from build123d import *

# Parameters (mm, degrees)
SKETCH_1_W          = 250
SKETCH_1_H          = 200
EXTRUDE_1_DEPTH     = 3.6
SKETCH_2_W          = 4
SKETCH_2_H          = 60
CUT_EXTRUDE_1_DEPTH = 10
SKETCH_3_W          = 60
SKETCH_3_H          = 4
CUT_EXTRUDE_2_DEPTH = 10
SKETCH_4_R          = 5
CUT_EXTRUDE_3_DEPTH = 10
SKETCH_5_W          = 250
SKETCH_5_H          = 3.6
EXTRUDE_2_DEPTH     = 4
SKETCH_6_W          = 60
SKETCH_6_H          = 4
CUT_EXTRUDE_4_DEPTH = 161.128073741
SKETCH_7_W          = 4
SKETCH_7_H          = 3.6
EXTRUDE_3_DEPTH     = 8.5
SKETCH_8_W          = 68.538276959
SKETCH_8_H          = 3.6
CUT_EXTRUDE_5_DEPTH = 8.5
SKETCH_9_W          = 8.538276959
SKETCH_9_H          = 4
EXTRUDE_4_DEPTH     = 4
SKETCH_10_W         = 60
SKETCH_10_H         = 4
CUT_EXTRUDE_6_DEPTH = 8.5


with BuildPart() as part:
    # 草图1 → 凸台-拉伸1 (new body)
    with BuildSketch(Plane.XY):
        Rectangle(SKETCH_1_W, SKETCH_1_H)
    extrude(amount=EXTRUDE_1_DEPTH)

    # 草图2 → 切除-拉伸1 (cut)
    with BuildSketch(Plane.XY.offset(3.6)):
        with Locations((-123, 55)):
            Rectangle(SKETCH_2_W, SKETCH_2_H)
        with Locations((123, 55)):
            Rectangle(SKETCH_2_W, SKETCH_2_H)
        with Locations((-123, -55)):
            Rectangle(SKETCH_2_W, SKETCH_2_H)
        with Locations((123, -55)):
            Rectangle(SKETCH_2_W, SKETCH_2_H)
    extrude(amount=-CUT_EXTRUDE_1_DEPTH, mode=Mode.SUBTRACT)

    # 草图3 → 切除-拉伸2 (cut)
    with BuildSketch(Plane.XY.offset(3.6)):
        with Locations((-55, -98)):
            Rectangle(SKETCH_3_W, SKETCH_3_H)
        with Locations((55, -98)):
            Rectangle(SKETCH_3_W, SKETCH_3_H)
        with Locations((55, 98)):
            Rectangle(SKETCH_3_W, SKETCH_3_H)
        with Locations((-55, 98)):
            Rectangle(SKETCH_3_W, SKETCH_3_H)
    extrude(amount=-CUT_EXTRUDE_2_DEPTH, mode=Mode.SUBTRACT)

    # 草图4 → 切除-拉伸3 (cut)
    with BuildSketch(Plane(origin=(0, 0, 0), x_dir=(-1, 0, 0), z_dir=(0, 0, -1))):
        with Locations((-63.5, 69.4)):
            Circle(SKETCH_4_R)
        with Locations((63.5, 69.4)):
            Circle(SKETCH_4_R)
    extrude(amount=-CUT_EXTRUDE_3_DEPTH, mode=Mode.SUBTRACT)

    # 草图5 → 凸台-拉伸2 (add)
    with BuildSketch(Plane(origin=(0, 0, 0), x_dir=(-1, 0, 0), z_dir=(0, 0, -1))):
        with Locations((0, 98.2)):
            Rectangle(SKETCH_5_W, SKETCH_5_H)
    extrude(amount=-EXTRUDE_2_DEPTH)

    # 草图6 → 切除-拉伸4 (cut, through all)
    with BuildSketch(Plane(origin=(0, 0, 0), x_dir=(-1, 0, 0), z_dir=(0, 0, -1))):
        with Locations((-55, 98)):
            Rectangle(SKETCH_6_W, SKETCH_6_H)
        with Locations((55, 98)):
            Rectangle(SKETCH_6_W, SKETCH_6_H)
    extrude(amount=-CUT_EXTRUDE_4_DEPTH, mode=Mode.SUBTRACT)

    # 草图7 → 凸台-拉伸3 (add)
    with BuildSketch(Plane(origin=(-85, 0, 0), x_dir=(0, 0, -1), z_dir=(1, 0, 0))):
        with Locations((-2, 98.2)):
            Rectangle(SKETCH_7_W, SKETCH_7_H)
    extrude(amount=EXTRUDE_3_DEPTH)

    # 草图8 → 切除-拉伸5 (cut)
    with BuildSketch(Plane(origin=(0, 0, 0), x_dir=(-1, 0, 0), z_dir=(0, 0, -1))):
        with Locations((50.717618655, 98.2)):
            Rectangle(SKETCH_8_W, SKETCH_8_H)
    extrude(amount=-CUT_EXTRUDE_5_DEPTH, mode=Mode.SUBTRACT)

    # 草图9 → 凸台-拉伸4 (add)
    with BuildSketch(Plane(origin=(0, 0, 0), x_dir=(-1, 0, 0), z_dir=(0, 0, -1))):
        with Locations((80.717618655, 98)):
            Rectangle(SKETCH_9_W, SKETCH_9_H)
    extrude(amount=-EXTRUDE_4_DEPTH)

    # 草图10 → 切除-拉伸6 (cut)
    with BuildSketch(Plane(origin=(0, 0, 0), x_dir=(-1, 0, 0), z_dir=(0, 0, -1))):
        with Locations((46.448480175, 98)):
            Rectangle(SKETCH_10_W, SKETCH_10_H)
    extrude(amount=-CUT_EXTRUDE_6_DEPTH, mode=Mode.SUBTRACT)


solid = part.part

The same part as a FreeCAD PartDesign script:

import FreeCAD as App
import Part
import Sketcher

doc = App.newDocument("Part")
params = doc.addObject("Spreadsheet::Sheet", "Params")
for row, (alias, value) in enumerate([
    ("sketch1_width", "250 mm"),
    ("sketch1_height", "200 mm"),
    ("pad1_length", "3.6 mm"),
    ("sketch2_width", "4 mm"),
    ("sketch2_height", "60 mm"),
    ("pocket1_length", "10 mm"),
    ("sketch3_width", "60 mm"),
    ("sketch3_height", "4 mm"),
    ("pocket2_length", "10 mm"),
    ("sketch4_diameter", "10 mm"),
    ("pocket3_length", "10 mm"),
    ("sketch5_width", "250 mm"),
    ("sketch5_height", "3.6 mm"),
    ("pad2_length", "4 mm"),
    ("sketch6_width", "60 mm"),
    ("sketch6_height", "4 mm"),
    ("sketch7_height", "4 mm"),
    ("sketch7_width", "3.6 mm"),
    ("pad3_length", "8.5 mm"),
    ("sketch8_height", "3.6 mm"),
    ("pocket5_length", "8.5 mm"),
    ("sketch9_height", "4 mm"),
    ("pad4_length", "4 mm"),
    ("sketch10_width", "60 mm"),
    ("sketch10_height", "4 mm"),
    ("pocket6_length", "8.5 mm"),
], start=1):
    params.set(f"A{row}", alias)
    params.set(f"B{row}", "=" + value)
    params.setAlias(f"B{row}", alias)

body = doc.addObject("PartDesign::Body", "Body")

sketch1 = body.newObject("Sketcher::SketchObject", "Sketch")
sketch1.AttachmentSupport = (doc.getObject("XY_Plane"), [""])
sketch1.MapMode = "FlatFace"
sketch1.addGeometry([
    Part.LineSegment(App.Vector(-125, 100, 0), App.Vector(-125, -100, 0)),
    Part.LineSegment(App.Vector(-125, -100, 0), App.Vector(125, -100, 0)),
    Part.LineSegment(App.Vector(125, -100, 0), App.Vector(125, 100, 0)),
    Part.LineSegment(App.Vector(125, 100, 0), App.Vector(-125, 100, 0)),
], False)
sketch1.addConstraint([
    Sketcher.Constraint("Coincident", 0, 2, 1, 1),
    Sketcher.Constraint("Coincident", 1, 2, 2, 1),
    Sketcher.Constraint("Coincident", 2, 2, 3, 1),
    Sketcher.Constraint("Coincident", 3, 2, 0, 1),
    Sketcher.Constraint("Vertical", 0),
    Sketcher.Constraint("Horizontal", 1),
    Sketcher.Constraint("Vertical", 2),
    Sketcher.Constraint("Horizontal", 3),
    Sketcher.Constraint("Symmetric", 0, 2, 2, 2, -1, 1),
    Sketcher.Constraint("DistanceX", 1, 1, 1, 2, 250.0),
    Sketcher.Constraint("DistanceY", 0, 2, 0, 1, 200.0),
])
sketch1.setExpression("Constraints[9]", "Params.sketch1_width")
sketch1.setExpression("Constraints[10]", "Params.sketch1_height")
pad1 = body.newObject("PartDesign::Pad", "Pad")
pad1.Profile = sketch1
pad1.setExpression("Length", "Params.pad1_length")

sketch2 = body.newObject("Sketcher::SketchObject", "Sketch001")
sketch2.AttachmentSupport = (doc.getObject("XY_Plane"), [""])
sketch2.MapMode = "FlatFace"
sketch2.AttachmentOffset = App.Placement(App.Vector(0, 0, 3.6), App.Rotation())
sketch2.addGeometry([
    Part.LineSegment(App.Vector(-125, 85, 0), App.Vector(-125, 25, 0)),
    Part.LineSegment(App.Vector(-125, 25, 0), App.Vector(-121, 25, 0)),
    Part.LineSegment(App.Vector(-121, 25, 0), App.Vector(-121, 85, 0)),
    Part.LineSegment(App.Vector(-121, 85, 0), App.Vector(-125, 85, 0)),
    Part.LineSegment(App.Vector(121, 85, 0), App.Vector(121, 25, 0)),
    Part.LineSegment(App.Vector(121, 25, 0), App.Vector(125, 25, 0)),
    Part.LineSegment(App.Vector(125, 25, 0), App.Vector(125, 85, 0)),
    Part.LineSegment(App.Vector(125, 85, 0), App.Vector(121, 85, 0)),
    Part.LineSegment(App.Vector(-125, -25, 0), App.Vector(-125, -85, 0)),
    Part.LineSegment(App.Vector(-125, -85, 0), App.Vector(-121, -85, 0)),
    Part.LineSegment(App.Vector(-121, -85, 0), App.Vector(-121, -25, 0)),
    Part.LineSegment(App.Vector(-121, -25, 0), App.Vector(-125, -25, 0)),
    Part.LineSegment(App.Vector(121, -25, 0), App.Vector(121, -85, 0)),
    Part.LineSegment(App.Vector(121, -85, 0), App.Vector(125, -85, 0)),
    Part.LineSegment(App.Vector(125, -85, 0), App.Vector(125, -25, 0)),
    Part.LineSegment(App.Vector(125, -25, 0), App.Vector(121, -25, 0)),
], False)
sketch2.addConstraint([
    Sketcher.Constraint("Coincident", 0, 2, 1, 1),
    Sketcher.Constraint("Coincident", 1, 2, 2, 1),
    Sketcher.Constraint("Coincident", 2, 2, 3, 1),
    Sketcher.Constraint("Coincident", 3, 2, 0, 1),
    Sketcher.Constraint("Coincident", 4, 2, 5, 1),
    Sketcher.Constraint("Coincident", 5, 2, 6, 1),
    Sketcher.Constraint("Coincident", 6, 2, 7, 1),
    Sketcher.Constraint("Coincident", 7, 2, 4, 1),
    Sketcher.Constraint("Coincident", 8, 2, 9, 1),
    Sketcher.Constraint("Coincident", 9, 2, 10, 1),
    Sketcher.Constraint("Coincident", 10, 2, 11, 1),
    Sketcher.Constraint("Coincident", 11, 2, 8, 1),
    Sketcher.Constraint("Coincident", 12, 2, 13, 1),
    Sketcher.Constraint("Coincident", 13, 2, 14, 1),
    Sketcher.Constraint("Coincident", 14, 2, 15, 1),
    Sketcher.Constraint("Coincident", 15, 2, 12, 1),
    Sketcher.Constraint("Vertical", 0),
    Sketcher.Constraint("Horizontal", 1),
    Sketcher.Constraint("Vertical", 2),
    Sketcher.Constraint("Horizontal", 3),
    Sketcher.Constraint("Vertical", 4),
    Sketcher.Constraint("Horizontal", 5),
    Sketcher.Constraint("Vertical", 6),
    Sketcher.Constraint("Horizontal", 7),
    Sketcher.Constraint("Vertical", 8),
    Sketcher.Constraint("Horizontal", 9),
    Sketcher.Constraint("Vertical", 10),
    Sketcher.Constraint("Horizontal", 11),
    Sketcher.Constraint("Vertical", 12),
    Sketcher.Constraint("Horizontal", 13),
    Sketcher.Constraint("Vertical", 14),
    Sketcher.Constraint("Horizontal", 15),
    Sketcher.Constraint("Symmetric", 6, 2, 8, 2, -1, 1),
    Sketcher.Constraint("Symmetric", 4, 2, 10, 2, -1, 1),
    Sketcher.Constraint("Symmetric", 2, 2, 12, 2, -1, 1),
    Sketcher.Constraint("Symmetric", 0, 2, 14, 2, -1, 1),
    Sketcher.Constraint("Symmetric", 1, 2, 4, 2, -2),
    Sketcher.Constraint("Symmetric", 3, 2, 6, 2, -2),
    Sketcher.Constraint("DistanceX", 1, 1, 1, 2, 4.0),
    Sketcher.Constraint("DistanceY", 0, 2, 0, 1, 60.0),
    Sketcher.Constraint("DistanceX", 0, 2, -1, 1, 125.0),
    Sketcher.Constraint("DistanceY", -1, 1, 0, 2, 25.0),
])
sketch2.setExpression("Constraints[38]", "Params.sketch2_width")
sketch2.setExpression("Constraints[39]", "Params.sketch2_height")
pocket1 = body.newObject("PartDesign::Pocket", "Pocket")
pocket1.Profile = sketch2
pocket1.setExpression("Length", "Params.pocket1_length")

sketch3 = body.newObject("Sketcher::SketchObject", "Sketch002")
sketch3.AttachmentSupport = (doc.getObject("XY_Plane"), [""])
sketch3.MapMode = "FlatFace"
sketch3.AttachmentOffset = App.Placement(App.Vector(0, 0, 3.6), App.Rotation())
sketch3.addGeometry([
    Part.LineSegment(App.Vector(-85, -96, 0), App.Vector(-85, -100, 0)),
    Part.LineSegment(App.Vector(-85, -100, 0), App.Vector(-25, -100, 0)),
    Part.LineSegment(App.Vector(-25, -100, 0), App.Vector(-25, -96, 0)),
    Part.LineSegment(App.Vector(-25, -96, 0), App.Vector(-85, -96, 0)),
    Part.LineSegment(App.Vector(25, -96, 0), App.Vector(25, -100, 0)),
    Part.LineSegment(App.Vector(25, -100, 0), App.Vector(85, -100, 0)),
    Part.LineSegment(App.Vector(85, -100, 0), App.Vector(85, -96, 0)),
    Part.LineSegment(App.Vector(85, -96, 0), App.Vector(25, -96, 0)),
    Part.LineSegment(App.Vector(25, 100, 0), App.Vector(25, 96, 0)),
    Part.LineSegment(App.Vector(25, 96, 0), App.Vector(85, 96, 0)),
    Part.LineSegment(App.Vector(85, 96, 0), App.Vector(85, 100, 0)),
    Part.LineSegment(App.Vector(85, 100, 0), App.Vector(25, 100, 0)),
    Part.LineSegment(App.Vector(-85, 100, 0), App.Vector(-85, 96, 0)),
    Part.LineSegment(App.Vector(-85, 96, 0), App.Vector(-25, 96, 0)),
    Part.LineSegment(App.Vector(-25, 96, 0), App.Vector(-25, 100, 0)),
    Part.LineSegment(App.Vector(-25, 100, 0), App.Vector(-85, 100, 0)),
], False)
sketch3.addConstraint([
    Sketcher.Constraint("Coincident", 0, 2, 1, 1),
    Sketcher.Constraint("Coincident", 1, 2, 2, 1),
    Sketcher.Constraint("Coincident", 2, 2, 3, 1),
    Sketcher.Constraint("Coincident", 3, 2, 0, 1),
    Sketcher.Constraint("Coincident", 4, 2, 5, 1),
    Sketcher.Constraint("Coincident", 5, 2, 6, 1),
    Sketcher.Constraint("Coincident", 6, 2, 7, 1),
    Sketcher.Constraint("Coincident", 7, 2, 4, 1),
    Sketcher.Constraint("Coincident", 8, 2, 9, 1),
    Sketcher.Constraint("Coincident", 9, 2, 10, 1),
    Sketcher.Constraint("Coincident", 10, 2, 11, 1),
    Sketcher.Constraint("Coincident", 11, 2, 8, 1),
    Sketcher.Constraint("Coincident", 12, 2, 13, 1),
    Sketcher.Constraint("Coincident", 13, 2, 14, 1),
    Sketcher.Constraint("Coincident", 14, 2, 15, 1),
    Sketcher.Constraint("Coincident", 15, 2, 12, 1),
    Sketcher.Constraint("Vertical", 0),
    Sketcher.Constraint("Horizontal", 1),
    Sketcher.Constraint("Vertical", 2),
    Sketcher.Constraint("Horizontal", 3),
    Sketcher.Constraint("Vertical", 4),
    Sketcher.Constraint("Horizontal", 5),
    Sketcher.Constraint("Vertical", 6),
    Sketcher.Constraint("Horizontal", 7),
    Sketcher.Constraint("Vertical", 8),
    Sketcher.Constraint("Horizontal", 9),
    Sketcher.Constraint("Vertical", 10),
    Sketcher.Constraint("Horizontal", 11),
    Sketcher.Constraint("Vertical", 12),
    Sketcher.Constraint("Horizontal", 13),
    Sketcher.Constraint("Vertical", 14),
    Sketcher.Constraint("Horizontal", 15),
    Sketcher.Constraint("Symmetric", 2, 2, 8, 2, -1, 1),
    Sketcher.Constraint("Symmetric", 0, 2, 10, 2, -1, 1),
    Sketcher.Constraint("Symmetric", 6, 2, 12, 2, -1, 1),
    Sketcher.Constraint("Symmetric", 4, 2, 14, 2, -1, 1),
    Sketcher.Constraint("Symmetric", 1, 2, 4, 2, -2),
    Sketcher.Constraint("Symmetric", 3, 2, 6, 2, -2),
    Sketcher.Constraint("DistanceX", 1, 1, 1, 2, 60.0),
    Sketcher.Constraint("DistanceY", 0, 2, 0, 1, 4.0),
    Sketcher.Constraint("DistanceX", 0, 2, -1, 1, 85.0),
    Sketcher.Constraint("DistanceY", 0, 2, -1, 1, 100.0),
])
sketch3.setExpression("Constraints[38]", "Params.sketch3_width")
sketch3.setExpression("Constraints[39]", "Params.sketch3_height")
pocket2 = body.newObject("PartDesign::Pocket", "Pocket001")
pocket2.Profile = sketch3
pocket2.setExpression("Length", "Params.pocket2_length")

sketch4 = body.newObject("Sketcher::SketchObject", "Sketch003")
sketch4.AttachmentSupport = (doc.getObject("XY_Plane"), [""])
sketch4.MapMode = "FlatFace"
sketch4.addGeometry([
    Part.Circle(App.Vector(64, 69, 0), App.Vector(0, 0, 1), 5),
    Part.Circle(App.Vector(-64, 69, 0), App.Vector(0, 0, 1), 5),
], False)
sketch4.addConstraint([
    Sketcher.Constraint("Equal", 0, 1),
    Sketcher.Constraint("Symmetric", 0, 3, 1, 3, -2),
    Sketcher.Constraint("Diameter", 0, 10.0),
    Sketcher.Constraint("DistanceX", 1, 3, 0, 3, 127.0),
    Sketcher.Constraint("DistanceY", -1, 1, 0, 3, 69.4),
])
sketch4.setExpression("Constraints[2]", "Params.sketch4_diameter")
pocket3 = body.newObject("PartDesign::Pocket", "Pocket002")
pocket3.Profile = sketch4
pocket3.setExpression("Length", "Params.pocket3_length")
pocket3.Reversed = True

sketch5 = body.newObject("Sketcher::SketchObject", "Sketch004")
sketch5.AttachmentSupport = (doc.getObject("XY_Plane"), [""])
sketch5.MapMode = "FlatFace"
sketch5.addGeometry([
    Part.LineSegment(App.Vector(125, 100, 0), App.Vector(125, 96.4, 0)),
    Part.LineSegment(App.Vector(125, 96.4, 0), App.Vector(-125, 96.4, 0)),
    Part.LineSegment(App.Vector(-125, 96.4, 0), App.Vector(-125, 100, 0)),
    Part.LineSegment(App.Vector(-125, 100, 0), App.Vector(125, 100, 0)),
], False)
sketch5.addConstraint([
    Sketcher.Constraint("Coincident", 0, 2, 1, 1),
    Sketcher.Constraint("Coincident", 1, 2, 2, 1),
    Sketcher.Constraint("Coincident", 2, 2, 3, 1),
    Sketcher.Constraint("Coincident", 3, 2, 0, 1),
    Sketcher.Constraint("Vertical", 0),
    Sketcher.Constraint("Horizontal", 1),
    Sketcher.Constraint("Vertical", 2),
    Sketcher.Constraint("Horizontal", 3),
    Sketcher.Constraint("DistanceX", 1, 2, 1, 1, 250.0),
    Sketcher.Constraint("DistanceY", 0, 2, 0, 1, 3.6),
    Sketcher.Constraint("DistanceX", -1, 1, 0, 2, 125.0),
    Sketcher.Constraint("DistanceY", -1, 1, 2, 2, 100.0),
])
sketch5.setExpression("Constraints[8]", "Params.sketch5_width")
sketch5.setExpression("Constraints[9]", "Params.sketch5_height")
pad2 = body.newObject("PartDesign::Pad", "Pad001")
pad2.Profile = sketch5
pad2.setExpression("Length", "Params.pad2_length")

sketch6 = body.newObject("Sketcher::SketchObject", "Sketch005")
sketch6.AttachmentSupport = (doc.getObject("XY_Plane"), [""])
sketch6.MapMode = "FlatFace"
sketch6.addGeometry([
    Part.LineSegment(App.Vector(85, 100, 0), App.Vector(85, 96, 0)),
    Part.LineSegment(App.Vector(85, 96, 0), App.Vector(25, 96, 0)),
    Part.LineSegment(App.Vector(25, 96, 0), App.Vector(25, 100, 0)),
    Part.LineSegment(App.Vector(25, 100, 0), App.Vector(85, 100, 0)),
    Part.LineSegment(App.Vector(-25, 100, 0), App.Vector(-25, 96, 0)),
    Part.LineSegment(App.Vector(-25, 96, 0), App.Vector(-85, 96, 0)),
    Part.LineSegment(App.Vector(-85, 96, 0), App.Vector(-85, 100, 0)),
    Part.LineSegment(App.Vector(-85, 100, 0), App.Vector(-25, 100, 0)),
], False)
sketch6.addConstraint([
    Sketcher.Constraint("Coincident", 0, 2, 1, 1),
    Sketcher.Constraint("Coincident", 1, 2, 2, 1),
    Sketcher.Constraint("Coincident", 2, 2, 3, 1),
    Sketcher.Constraint("Coincident", 3, 2, 0, 1),
    Sketcher.Constraint("Coincident", 4, 2, 5, 1),
    Sketcher.Constraint("Coincident", 5, 2, 6, 1),
    Sketcher.Constraint("Coincident", 6, 2, 7, 1),
    Sketcher.Constraint("Coincident", 7, 2, 4, 1),
    Sketcher.Constraint("Vertical", 0),
    Sketcher.Constraint("Horizontal", 1),
    Sketcher.Constraint("Vertical", 2),
    Sketcher.Constraint("Horizontal", 3),
    Sketcher.Constraint("Vertical", 4),
    Sketcher.Constraint("Horizontal", 5),
    Sketcher.Constraint("Vertical", 6),
    Sketcher.Constraint("Horizontal", 7),
    Sketcher.Constraint("Symmetric", 1, 2, 4, 2, -2),
    Sketcher.Constraint("Symmetric", 3, 2, 6, 2, -2),
    Sketcher.Constraint("DistanceX", 1, 2, 1, 1, 60.0),
    Sketcher.Constraint("DistanceY", 0, 2, 0, 1, 4.0),
    Sketcher.Constraint("DistanceX", -1, 1, 0, 2, 85.0),
    Sketcher.Constraint("DistanceY", -1, 1, 0, 2, 96.0),
])
sketch6.setExpression("Constraints[18]", "Params.sketch6_width")
sketch6.setExpression("Constraints[19]", "Params.sketch6_height")
pocket4 = body.newObject("PartDesign::Pocket", "Pocket003")
pocket4.Profile = sketch6
pocket4.Type = "ThroughAll"
pocket4.Reversed = True

sketch7 = body.newObject("Sketcher::SketchObject", "Sketch006")
sketch7.AttachmentSupport = (doc.getObject("YZ_Plane"), [""])
sketch7.MapMode = "FlatFace"
sketch7.AttachmentOffset = App.Placement(App.Vector(0, 0, -85), App.Rotation())
sketch7.addGeometry([
    Part.LineSegment(App.Vector(100, 4, 0), App.Vector(96.4, 4, 0)),
    Part.LineSegment(App.Vector(96.4, 4, 0), App.Vector(96.4, 0, 0)),
    Part.LineSegment(App.Vector(96.4, 0, 0), App.Vector(100, 0, 0)),
    Part.LineSegment(App.Vector(100, 0, 0), App.Vector(100, 4, 0)),
], False)
sketch7.addConstraint([
    Sketcher.Constraint("Coincident", 0, 2, 1, 1),
    Sketcher.Constraint("Coincident", 1, 2, 2, 1),
    Sketcher.Constraint("Coincident", 2, 2, 3, 1),
    Sketcher.Constraint("Coincident", 3, 2, 0, 1),
    Sketcher.Constraint("Horizontal", 0),
    Sketcher.Constraint("Vertical", 1),
    Sketcher.Constraint("Horizontal", 2),
    Sketcher.Constraint("Vertical", 3),
    Sketcher.Constraint("PointOnObject", 1, 2, -1),
    Sketcher.Constraint("DistanceY", 1, 2, 1, 1, 4.0),
    Sketcher.Constraint("DistanceX", 0, 2, 0, 1, 3.6),
    Sketcher.Constraint("DistanceX", -1, 1, 2, 2, 100.0),
])
sketch7.setExpression("Constraints[9]", "Params.sketch7_height")
sketch7.setExpression("Constraints[10]", "Params.sketch7_width")
pad3 = body.newObject("PartDesign::Pad", "Pad002")
pad3.Profile = sketch7
pad3.setExpression("Length", "Params.pad3_length")

sketch8 = body.newObject("Sketcher::SketchObject", "Sketch007")
sketch8.AttachmentSupport = (doc.getObject("XY_Plane"), [""])
sketch8.MapMode = "FlatFace"
sketch8.addGeometry([
    Part.LineSegment(App.Vector(-16.4, 100, 0), App.Vector(-16.4, 96.4, 0)),
    Part.LineSegment(App.Vector(-16.4, 96.4, 0), App.Vector(-85, 96.4, 0)),
    Part.LineSegment(App.Vector(-85, 96.4, 0), App.Vector(-85, 100, 0)),
    Part.LineSegment(App.Vector(-85, 100, 0), App.Vector(-16.4, 100, 0)),
], False)
sketch8.addConstraint([
    Sketcher.Constraint("Coincident", 0, 2, 1, 1),
    Sketcher.Constraint("Coincident", 1, 2, 2, 1),
    Sketcher.Constraint("Coincident", 2, 2, 3, 1),
    Sketcher.Constraint("Coincident", 3, 2, 0, 1),
    Sketcher.Constraint("Vertical", 0),
    Sketcher.Constraint("Horizontal", 1),
    Sketcher.Constraint("Vertical", 2),
    Sketcher.Constraint("Horizontal", 3),
    Sketcher.Constraint("DistanceY", 0, 2, 0, 1, 3.6),
    Sketcher.Constraint("DistanceY", -1, 1, 2, 2, 100.0),
    Sketcher.Constraint("DistanceX", 1, 2, 1, 1, 68.538277),
    Sketcher.Constraint("DistanceX", 0, 2, -1, 1, 16.44848),
])
sketch8.setExpression("Constraints[8]", "Params.sketch8_height")
pocket5 = body.newObject("PartDesign::Pocket", "Pocket004")
pocket5.Profile = sketch8
pocket5.setExpression("Length", "Params.pocket5_length")
pocket5.Reversed = True

sketch9 = body.newObject("Sketcher::SketchObject", "Sketch008")
sketch9.AttachmentSupport = (doc.getObject("XY_Plane"), [""])
sketch9.MapMode = "FlatFace"
sketch9.addGeometry([
    Part.LineSegment(App.Vector(-76.4, 100, 0), App.Vector(-76.4, 96, 0)),
    Part.LineSegment(App.Vector(-76.4, 96, 0), App.Vector(-85, 96, 0)),
    Part.LineSegment(App.Vector(-85, 96, 0), App.Vector(-85, 100, 0)),
    Part.LineSegment(App.Vector(-85, 100, 0), App.Vector(-76.4, 100, 0)),
], False)
sketch9.addConstraint([
    Sketcher.Constraint("Coincident", 0, 2, 1, 1),
    Sketcher.Constraint("Coincident", 1, 2, 2, 1),
    Sketcher.Constraint("Coincident", 2, 2, 3, 1),
    Sketcher.Constraint("Coincident", 3, 2, 0, 1),
    Sketcher.Constraint("Vertical", 0),
    Sketcher.Constraint("Horizontal", 1),
    Sketcher.Constraint("Vertical", 2),
    Sketcher.Constraint("Horizontal", 3),
    Sketcher.Constraint("DistanceY", 0, 2, 0, 1, 4.0),
    Sketcher.Constraint("DistanceY", -1, 1, 0, 2, 96.0),
    Sketcher.Constraint("DistanceX", 1, 2, 1, 1, 8.538277),
    Sketcher.Constraint("DistanceX", 0, 2, -1, 1, 76.44848),
])
sketch9.setExpression("Constraints[8]", "Params.sketch9_height")
pad4 = body.newObject("PartDesign::Pad", "Pad003")
pad4.Profile = sketch9
pad4.setExpression("Length", "Params.pad4_length")

sketch10 = body.newObject("Sketcher::SketchObject", "Sketch009")
sketch10.AttachmentSupport = (doc.getObject("XY_Plane"), [""])
sketch10.MapMode = "FlatFace"
sketch10.addGeometry([
    Part.LineSegment(App.Vector(-16.4, 100, 0), App.Vector(-16.4, 96, 0)),
    Part.LineSegment(App.Vector(-16.4, 96, 0), App.Vector(-76.4, 96, 0)),
    Part.LineSegment(App.Vector(-76.4, 96, 0), App.Vector(-76.4, 100, 0)),
    Part.LineSegment(App.Vector(-76.4, 100, 0), App.Vector(-16.4, 100, 0)),
], False)
sketch10.addConstraint([
    Sketcher.Constraint("Coincident", 0, 2, 1, 1),
    Sketcher.Constraint("Coincident", 1, 2, 2, 1),
    Sketcher.Constraint("Coincident", 2, 2, 3, 1),
    Sketcher.Constraint("Coincident", 3, 2, 0, 1),
    Sketcher.Constraint("Vertical", 0),
    Sketcher.Constraint("Horizontal", 1),
    Sketcher.Constraint("Vertical", 2),
    Sketcher.Constraint("Horizontal", 3),
    Sketcher.Constraint("DistanceX", 1, 2, 1, 1, 60.0),
    Sketcher.Constraint("DistanceY", 0, 2, 0, 1, 4.0),
    Sketcher.Constraint("DistanceY", -1, 1, 0, 2, 96.0),
    Sketcher.Constraint("DistanceX", 0, 2, -1, 1, 16.44848),
])
sketch10.setExpression("Constraints[8]", "Params.sketch10_width")
sketch10.setExpression("Constraints[9]", "Params.sketch10_height")
pocket6 = body.newObject("PartDesign::Pocket", "Pocket005")
pocket6.Profile = sketch10
pocket6.setExpression("Length", "Params.pocket6_length")
pocket6.Reversed = True

doc.recompute()
